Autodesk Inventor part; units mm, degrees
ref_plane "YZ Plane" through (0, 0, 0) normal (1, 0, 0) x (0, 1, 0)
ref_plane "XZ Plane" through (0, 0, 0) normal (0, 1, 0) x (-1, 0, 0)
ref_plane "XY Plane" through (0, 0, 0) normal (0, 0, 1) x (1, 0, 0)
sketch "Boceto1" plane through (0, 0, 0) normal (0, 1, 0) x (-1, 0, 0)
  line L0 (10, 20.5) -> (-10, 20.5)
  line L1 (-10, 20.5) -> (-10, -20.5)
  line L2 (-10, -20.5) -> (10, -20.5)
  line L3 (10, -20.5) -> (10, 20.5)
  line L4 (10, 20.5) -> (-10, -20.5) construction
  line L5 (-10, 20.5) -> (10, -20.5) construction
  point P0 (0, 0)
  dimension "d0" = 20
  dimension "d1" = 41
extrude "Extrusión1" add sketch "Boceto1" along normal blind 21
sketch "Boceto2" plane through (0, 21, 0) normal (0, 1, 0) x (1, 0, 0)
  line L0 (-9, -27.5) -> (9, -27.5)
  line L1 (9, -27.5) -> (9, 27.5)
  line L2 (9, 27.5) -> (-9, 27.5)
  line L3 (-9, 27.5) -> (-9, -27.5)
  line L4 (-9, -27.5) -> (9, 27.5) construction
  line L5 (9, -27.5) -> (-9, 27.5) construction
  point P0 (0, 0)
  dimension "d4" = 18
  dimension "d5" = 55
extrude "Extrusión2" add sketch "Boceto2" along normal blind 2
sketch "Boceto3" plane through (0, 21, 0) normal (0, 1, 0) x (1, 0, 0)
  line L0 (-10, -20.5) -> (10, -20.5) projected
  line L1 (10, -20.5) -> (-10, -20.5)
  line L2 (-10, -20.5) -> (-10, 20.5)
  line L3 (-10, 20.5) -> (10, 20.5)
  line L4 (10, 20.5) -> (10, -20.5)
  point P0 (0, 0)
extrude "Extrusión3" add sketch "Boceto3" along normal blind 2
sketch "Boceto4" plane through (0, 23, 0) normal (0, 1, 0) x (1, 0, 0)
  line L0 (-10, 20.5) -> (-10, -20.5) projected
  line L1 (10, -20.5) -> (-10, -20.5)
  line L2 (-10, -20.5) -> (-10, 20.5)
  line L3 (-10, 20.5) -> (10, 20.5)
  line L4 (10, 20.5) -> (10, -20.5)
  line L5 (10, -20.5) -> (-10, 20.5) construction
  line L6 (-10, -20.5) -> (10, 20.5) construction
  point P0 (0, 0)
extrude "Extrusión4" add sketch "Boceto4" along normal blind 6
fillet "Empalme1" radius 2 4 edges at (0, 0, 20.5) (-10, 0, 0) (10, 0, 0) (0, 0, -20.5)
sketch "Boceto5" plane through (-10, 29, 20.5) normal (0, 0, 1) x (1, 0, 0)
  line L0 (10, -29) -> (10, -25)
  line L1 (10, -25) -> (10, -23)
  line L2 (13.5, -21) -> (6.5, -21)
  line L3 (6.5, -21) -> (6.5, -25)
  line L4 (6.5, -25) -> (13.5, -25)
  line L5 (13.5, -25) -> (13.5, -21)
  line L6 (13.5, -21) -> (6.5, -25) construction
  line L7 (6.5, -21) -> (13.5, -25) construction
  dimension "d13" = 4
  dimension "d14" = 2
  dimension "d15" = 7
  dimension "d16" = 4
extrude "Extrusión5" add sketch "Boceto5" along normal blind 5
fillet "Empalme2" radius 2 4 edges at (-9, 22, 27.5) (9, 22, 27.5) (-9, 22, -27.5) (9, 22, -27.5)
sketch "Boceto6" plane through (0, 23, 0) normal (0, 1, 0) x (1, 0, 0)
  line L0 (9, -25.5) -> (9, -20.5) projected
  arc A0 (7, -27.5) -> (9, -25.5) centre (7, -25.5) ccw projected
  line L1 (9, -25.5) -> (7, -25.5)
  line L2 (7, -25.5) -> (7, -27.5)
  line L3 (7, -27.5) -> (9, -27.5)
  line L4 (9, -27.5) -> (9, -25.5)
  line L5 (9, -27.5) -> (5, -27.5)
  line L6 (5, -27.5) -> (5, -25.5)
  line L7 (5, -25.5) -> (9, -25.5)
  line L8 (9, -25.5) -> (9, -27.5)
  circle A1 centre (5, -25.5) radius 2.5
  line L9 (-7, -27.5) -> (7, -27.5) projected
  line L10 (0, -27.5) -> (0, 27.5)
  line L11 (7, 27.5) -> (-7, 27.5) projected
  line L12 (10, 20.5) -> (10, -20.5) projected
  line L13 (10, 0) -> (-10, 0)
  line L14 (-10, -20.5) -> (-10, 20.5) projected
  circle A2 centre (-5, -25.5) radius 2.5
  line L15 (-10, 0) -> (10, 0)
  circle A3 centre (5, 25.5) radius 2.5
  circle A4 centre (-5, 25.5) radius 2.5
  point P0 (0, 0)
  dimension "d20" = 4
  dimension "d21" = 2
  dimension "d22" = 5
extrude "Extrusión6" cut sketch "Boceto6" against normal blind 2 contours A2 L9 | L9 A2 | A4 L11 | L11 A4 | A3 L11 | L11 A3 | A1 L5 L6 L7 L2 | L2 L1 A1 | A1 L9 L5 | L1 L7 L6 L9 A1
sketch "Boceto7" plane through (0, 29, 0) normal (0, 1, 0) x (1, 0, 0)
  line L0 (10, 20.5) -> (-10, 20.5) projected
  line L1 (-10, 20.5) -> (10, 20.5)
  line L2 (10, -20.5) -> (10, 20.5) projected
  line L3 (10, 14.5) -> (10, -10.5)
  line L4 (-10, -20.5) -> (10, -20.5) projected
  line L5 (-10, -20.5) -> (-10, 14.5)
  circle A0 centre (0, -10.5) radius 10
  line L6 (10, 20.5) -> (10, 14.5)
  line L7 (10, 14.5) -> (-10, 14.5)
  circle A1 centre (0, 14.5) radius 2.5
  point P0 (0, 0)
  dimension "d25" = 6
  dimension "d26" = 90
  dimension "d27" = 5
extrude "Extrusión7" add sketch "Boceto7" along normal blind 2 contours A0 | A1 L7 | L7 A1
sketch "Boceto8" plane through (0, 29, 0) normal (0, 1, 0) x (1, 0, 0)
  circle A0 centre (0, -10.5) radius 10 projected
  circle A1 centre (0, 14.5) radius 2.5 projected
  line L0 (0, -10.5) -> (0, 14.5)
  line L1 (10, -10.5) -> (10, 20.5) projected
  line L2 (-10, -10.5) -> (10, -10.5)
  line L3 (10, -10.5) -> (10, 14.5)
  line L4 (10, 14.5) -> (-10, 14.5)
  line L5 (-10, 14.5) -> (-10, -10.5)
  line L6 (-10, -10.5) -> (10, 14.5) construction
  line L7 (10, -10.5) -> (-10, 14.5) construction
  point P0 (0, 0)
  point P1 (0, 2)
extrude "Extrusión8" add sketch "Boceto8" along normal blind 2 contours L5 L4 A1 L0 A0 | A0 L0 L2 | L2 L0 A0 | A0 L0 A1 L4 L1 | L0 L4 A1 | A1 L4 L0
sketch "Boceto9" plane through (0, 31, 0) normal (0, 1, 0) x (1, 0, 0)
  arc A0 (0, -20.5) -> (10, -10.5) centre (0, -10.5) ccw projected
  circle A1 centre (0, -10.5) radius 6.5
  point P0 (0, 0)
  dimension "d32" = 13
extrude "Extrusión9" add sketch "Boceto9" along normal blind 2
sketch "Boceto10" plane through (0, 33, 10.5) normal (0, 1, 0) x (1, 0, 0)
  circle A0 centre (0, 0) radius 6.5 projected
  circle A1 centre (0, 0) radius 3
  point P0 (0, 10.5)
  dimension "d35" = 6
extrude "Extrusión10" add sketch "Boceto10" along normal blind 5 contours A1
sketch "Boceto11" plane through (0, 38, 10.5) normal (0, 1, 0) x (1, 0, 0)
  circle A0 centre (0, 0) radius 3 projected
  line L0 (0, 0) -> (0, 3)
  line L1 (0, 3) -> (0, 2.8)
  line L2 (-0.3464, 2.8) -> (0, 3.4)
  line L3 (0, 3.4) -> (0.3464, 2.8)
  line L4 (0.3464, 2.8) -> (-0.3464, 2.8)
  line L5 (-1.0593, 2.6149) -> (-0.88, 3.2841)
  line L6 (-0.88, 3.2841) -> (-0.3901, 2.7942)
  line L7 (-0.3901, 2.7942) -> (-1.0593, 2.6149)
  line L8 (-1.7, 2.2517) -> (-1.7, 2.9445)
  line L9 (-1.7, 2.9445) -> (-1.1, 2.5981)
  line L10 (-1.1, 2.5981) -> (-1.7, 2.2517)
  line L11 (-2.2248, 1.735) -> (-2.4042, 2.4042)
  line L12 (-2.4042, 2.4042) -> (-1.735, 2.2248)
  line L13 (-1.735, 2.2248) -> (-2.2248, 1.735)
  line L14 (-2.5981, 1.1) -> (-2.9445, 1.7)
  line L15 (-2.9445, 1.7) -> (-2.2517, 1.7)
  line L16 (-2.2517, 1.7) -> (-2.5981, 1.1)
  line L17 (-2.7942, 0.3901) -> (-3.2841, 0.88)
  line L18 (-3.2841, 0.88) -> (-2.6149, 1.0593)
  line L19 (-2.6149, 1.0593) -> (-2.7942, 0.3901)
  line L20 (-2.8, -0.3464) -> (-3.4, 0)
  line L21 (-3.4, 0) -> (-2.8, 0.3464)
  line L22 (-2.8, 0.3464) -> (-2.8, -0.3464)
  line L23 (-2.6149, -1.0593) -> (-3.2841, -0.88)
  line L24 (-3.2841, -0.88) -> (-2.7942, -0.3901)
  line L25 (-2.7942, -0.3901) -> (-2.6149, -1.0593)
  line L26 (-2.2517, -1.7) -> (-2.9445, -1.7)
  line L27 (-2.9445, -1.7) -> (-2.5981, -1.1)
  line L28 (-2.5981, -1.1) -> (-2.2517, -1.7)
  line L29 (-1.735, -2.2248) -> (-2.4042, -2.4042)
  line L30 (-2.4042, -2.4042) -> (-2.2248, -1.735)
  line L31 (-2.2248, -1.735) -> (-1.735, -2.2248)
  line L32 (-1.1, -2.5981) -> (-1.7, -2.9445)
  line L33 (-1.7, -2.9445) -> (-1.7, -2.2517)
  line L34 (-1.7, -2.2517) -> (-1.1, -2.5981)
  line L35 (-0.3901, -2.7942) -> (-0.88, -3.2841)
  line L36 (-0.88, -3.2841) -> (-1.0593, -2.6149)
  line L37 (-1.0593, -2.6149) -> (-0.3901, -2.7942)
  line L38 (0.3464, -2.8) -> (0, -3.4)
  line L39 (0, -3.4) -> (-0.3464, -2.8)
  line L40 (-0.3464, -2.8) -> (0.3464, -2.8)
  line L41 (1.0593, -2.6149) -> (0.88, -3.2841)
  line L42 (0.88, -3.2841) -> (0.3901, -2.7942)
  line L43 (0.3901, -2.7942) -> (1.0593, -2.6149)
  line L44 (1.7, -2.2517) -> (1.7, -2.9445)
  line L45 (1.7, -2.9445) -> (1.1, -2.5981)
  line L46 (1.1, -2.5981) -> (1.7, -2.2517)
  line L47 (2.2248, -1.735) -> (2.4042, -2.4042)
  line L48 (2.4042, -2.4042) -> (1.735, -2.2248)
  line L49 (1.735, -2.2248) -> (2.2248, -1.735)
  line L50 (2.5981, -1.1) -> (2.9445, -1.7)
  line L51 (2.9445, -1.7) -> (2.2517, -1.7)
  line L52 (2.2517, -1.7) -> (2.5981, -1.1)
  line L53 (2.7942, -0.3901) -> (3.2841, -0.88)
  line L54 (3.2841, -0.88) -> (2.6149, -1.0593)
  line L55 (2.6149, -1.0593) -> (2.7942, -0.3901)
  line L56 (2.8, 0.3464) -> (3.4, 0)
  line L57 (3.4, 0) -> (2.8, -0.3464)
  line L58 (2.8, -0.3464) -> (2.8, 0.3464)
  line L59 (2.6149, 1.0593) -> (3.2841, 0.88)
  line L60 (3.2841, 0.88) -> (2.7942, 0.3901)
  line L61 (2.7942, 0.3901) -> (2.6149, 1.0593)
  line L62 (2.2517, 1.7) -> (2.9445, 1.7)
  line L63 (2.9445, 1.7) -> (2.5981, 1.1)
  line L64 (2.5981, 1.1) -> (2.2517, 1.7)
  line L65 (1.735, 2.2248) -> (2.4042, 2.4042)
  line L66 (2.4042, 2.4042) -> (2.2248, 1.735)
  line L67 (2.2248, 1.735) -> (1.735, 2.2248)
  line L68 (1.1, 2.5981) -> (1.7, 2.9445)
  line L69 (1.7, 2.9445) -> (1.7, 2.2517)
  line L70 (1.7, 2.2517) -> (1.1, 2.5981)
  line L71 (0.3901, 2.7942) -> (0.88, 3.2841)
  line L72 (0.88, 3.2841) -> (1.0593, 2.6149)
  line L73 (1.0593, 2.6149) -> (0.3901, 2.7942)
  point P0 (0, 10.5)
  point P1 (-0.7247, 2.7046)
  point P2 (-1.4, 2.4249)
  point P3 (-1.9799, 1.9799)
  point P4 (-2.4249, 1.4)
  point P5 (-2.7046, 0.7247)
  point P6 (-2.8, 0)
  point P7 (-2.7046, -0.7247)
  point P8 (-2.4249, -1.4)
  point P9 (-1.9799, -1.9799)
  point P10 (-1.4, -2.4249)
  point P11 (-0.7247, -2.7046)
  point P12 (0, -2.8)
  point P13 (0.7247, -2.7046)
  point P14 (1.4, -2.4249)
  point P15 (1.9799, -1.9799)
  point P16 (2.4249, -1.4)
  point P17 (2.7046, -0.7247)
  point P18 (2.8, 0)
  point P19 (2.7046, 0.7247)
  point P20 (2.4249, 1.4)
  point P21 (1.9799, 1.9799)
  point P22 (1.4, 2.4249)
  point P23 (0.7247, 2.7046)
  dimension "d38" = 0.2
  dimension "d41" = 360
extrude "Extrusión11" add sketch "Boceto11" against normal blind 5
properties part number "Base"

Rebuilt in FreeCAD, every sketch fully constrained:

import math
import FreeCAD as App
import Part
import Sketcher
Q = App.Units.Quantity


def edges_at(feature, points):
    """Names of the edges that pass closest to the given points."""
    edges = feature.Shape.Edges
    near = lambda p: min(range(len(edges)), key=lambda i: edges[i].distToShape(Part.Vertex(*p))[0])
    return sorted({f"Edge{near(p) + 1}" for p in points})

doc = App.newDocument("Part")
body = doc.addObject("PartDesign::Body", "Body")

# Sketch on XZ plane
sketch1 = body.newObject("Sketcher::SketchObject", "Sketch")
sketch1.AttachmentSupport = (doc.getObject("XZ_Plane"), [""])
sketch1.MapMode = "FlatFace"
sketch1.addGeometry(Part.LineSegment(App.Vector(-10, -20, 0), App.Vector(-10, 20, 0)), False)
sketch1.addGeometry(Part.LineSegment(App.Vector(-10, 20, 0), App.Vector(10, 20, 0)), False)
sketch1.addGeometry(Part.LineSegment(App.Vector(10, 20, 0), App.Vector(10, -20, 0)), False)
sketch1.addGeometry(Part.LineSegment(App.Vector(10, -20, 0), App.Vector(-10, -20, 0)), False)
sketch1.addConstraint(Sketcher.Constraint("Coincident", 0, 2, 1, 1))
sketch1.addConstraint(Sketcher.Constraint("Coincident", 1, 2, 2, 1))
sketch1.addConstraint(Sketcher.Constraint("Coincident", 2, 2, 3, 1))
sketch1.addConstraint(Sketcher.Constraint("Coincident", 3, 2, 0, 1))
sketch1.addConstraint(Sketcher.Constraint("Vertical", 0))
sketch1.addConstraint(Sketcher.Constraint("Horizontal", 1))
sketch1.addConstraint(Sketcher.Constraint("Vertical", 2))
sketch1.addConstraint(Sketcher.Constraint("Horizontal", 3))
sketch1.addConstraint(Sketcher.Constraint("Symmetric", 0, 2, 2, 2, -1, 1))
sketch1.addConstraint(Sketcher.Constraint("DistanceX", 1, 1, 1, 2, Q("20 mm")))
sketch1.addConstraint(Sketcher.Constraint("DistanceY", 0, 1, 0, 2, Q("41 mm")))
pad1 = body.newObject("PartDesign::Pad", "Pad")
pad1.Profile = sketch1
pad1.Length = 21
pad1.Reversed = True

# Sketch on XZ plane
sketch2 = body.newObject("Sketcher::SketchObject", "Sketch001")
sketch2.AttachmentSupport = (doc.getObject("XZ_Plane"), [""])
sketch2.MapMode = "FlatFace"
sketch2.AttachmentOffset = App.Placement(App.Vector(0, 0, -21), App.Rotation())
sketch2.addGeometry(Part.LineSegment(App.Vector(-9, -28, 0), App.Vector(-9, 28, 0)), False)
sketch2.addGeometry(Part.LineSegment(App.Vector(-9, 28, 0), App.Vector(9, 28, 0)), False)
sketch2.addGeometry(Part.LineSegment(App.Vector(9, 28, 0), App.Vector(9, -28, 0)), False)
sketch2.addGeometry(Part.LineSegment(App.Vector(9, -28, 0), App.Vector(-9, -28, 0)), False)
sketch2.addConstraint(Sketcher.Constraint("Coincident", 0, 2, 1, 1))
sketch2.addConstraint(Sketcher.Constraint("Coincident", 1, 2, 2, 1))
sketch2.addConstraint(Sketcher.Constraint("Coincident", 2, 2, 3, 1))
sketch2.addConstraint(Sketcher.Constraint("Coincident", 3, 2, 0, 1))
sketch2.addConstraint(Sketcher.Constraint("Vertical", 0))
sketch2.addConstraint(Sketcher.Constraint("Horizontal", 1))
sketch2.addConstraint(Sketcher.Constraint("Vertical", 2))
sketch2.addConstraint(Sketcher.Constraint("Horizontal", 3))
sketch2.addConstraint(Sketcher.Constraint("Symmetric", 0, 2, 2, 2, -1, 1))
sketch2.addConstraint(Sketcher.Constraint("DistanceX", 1, 1, 1, 2, Q("18 mm")))
sketch2.addConstraint(Sketcher.Constraint("DistanceY", 0, 1, 0, 2, Q("55 mm")))
pad2 = body.newObject("PartDesign::Pad", "Pad001")
pad2.Profile = sketch2
pad2.Length = 2
pad2.Reversed = True

# Sketch on XZ plane
sketch3 = body.newObject("Sketcher::SketchObject", "Sketch002")
sketch3.AttachmentSupport = (doc.getObject("XZ_Plane"), [""])
sketch3.MapMode = "FlatFace"
sketch3.AttachmentOffset = App.Placement(App.Vector(0, 0, -21), App.Rotation())
sketch3.addGeometry(Part.LineSegment(App.Vector(-10, -20, 0), App.Vector(-10, 20, 0)), False)
sketch3.addGeometry(Part.LineSegment(App.Vector(-10, 20, 0), App.Vector(10, 20, 0)), False)
sketch3.addGeometry(Part.LineSegment(App.Vector(10, 20, 0), App.Vector(10, -20, 0)), False)
sketch3.addGeometry(Part.LineSegment(App.Vector(10, -20, 0), App.Vector(-10, -20, 0)), False)
sketch3.addConstraint(Sketcher.Constraint("Coincident", 0, 2, 1, 1))
sketch3.addConstraint(Sketcher.Constraint("Coincident", 1, 2, 2, 1))
sketch3.addConstraint(Sketcher.Constraint("Coincident", 2, 2, 3, 1))
sketch3.addConstraint(Sketcher.Constraint("Coincident", 3, 2, 0, 1))
sketch3.addConstraint(Sketcher.Constraint("Vertical", 0))
sketch3.addConstraint(Sketcher.Constraint("Horizontal", 1))
sketch3.addConstraint(Sketcher.Constraint("Vertical", 2))
sketch3.addConstraint(Sketcher.Constraint("Horizontal", 3))
sketch3.addConstraint(Sketcher.Constraint("Symmetric", 0, 2, 2, 2, -1, 1))
sketch3.addConstraint(Sketcher.Constraint("DistanceX", 1, 1, 1, 2, Q("20 mm")))
sketch3.addConstraint(Sketcher.Constraint("DistanceY", 0, 1, 0, 2, Q("41 mm")))
pad3 = body.newObject("PartDesign::Pad", "Pad002")
pad3.Profile = sketch3
pad3.Length = 2
pad3.Reversed = True

# Sketch on XZ plane
sketch4 = body.newObject("Sketcher::SketchObject", "Sketch003")
sketch4.AttachmentSupport = (doc.getObject("XZ_Plane"), [""])
sketch4.MapMode = "FlatFace"
sketch4.AttachmentOffset = App.Placement(App.Vector(0, 0, -23), App.Rotation())
sketch4.addGeometry(Part.LineSegment(App.Vector(10, -20, 0), App.Vector(-10, -20, 0)), False)
sketch4.addGeometry(Part.LineSegment(App.Vector(-10, -20, 0), App.Vector(-10, 20, 0)), False)
sketch4.addGeometry(Part.LineSegment(App.Vector(-10, 20, 0), App.Vector(10, 20, 0)), False)
sketch4.addGeometry(Part.LineSegment(App.Vector(10, 20, 0), App.Vector(10, -20, 0)), False)
sketch4.addConstraint(Sketcher.Constraint("Coincident", 0, 2, 1, 1))
sketch4.addConstraint(Sketcher.Constraint("Coincident", 1, 2, 2, 1))
sketch4.addConstraint(Sketcher.Constraint("Coincident", 2, 2, 3, 1))
sketch4.addConstraint(Sketcher.Constraint("Coincident", 3, 2, 0, 1))
sketch4.addConstraint(Sketcher.Constraint("Horizontal", 0))
sketch4.addConstraint(Sketcher.Constraint("Vertical", 1))
sketch4.addConstraint(Sketcher.Constraint("Horizontal", 2))
sketch4.addConstraint(Sketcher.Constraint("Vertical", 3))
sketch4.addConstraint(Sketcher.Constraint("Symmetric", 0, 2, 2, 2, -1, 1))
sketch4.addConstraint(Sketcher.Constraint("DistanceX", 0, 2, 0, 1, Q("20 mm")))
sketch4.addConstraint(Sketcher.Constraint("DistanceY", 1, 1, 1, 2, Q("41 mm")))
pad4 = body.newObject("PartDesign::Pad", "Pad003")
pad4.Profile = sketch4
pad4.Length = 6
pad4.Reversed = True
doc.recompute()

fillet = body.newObject("PartDesign::Fillet", "Fillet")
fillet.Base = (pad4, edges_at(pad4, [
    (0, 0, 20.5),
    (-10, 0, 0),
    (10, 0, 0),
    (0, 0, -20.5),
]))
fillet.Radius = 2

# Sketch on XY plane
sketch5 = body.newObject("Sketcher::SketchObject", "Sketch004")
sketch5.AttachmentSupport = (doc.getObject("XY_Plane"), [""])
sketch5.MapMode = "FlatFace"
sketch5.AttachmentOffset = App.Placement(App.Vector(0, 0, 20.5), App.Rotation())
sketch5.addGeometry(Part.LineSegment(App.Vector(3.5, 4, 0), App.Vector(3.5, 8, 0)), False)
sketch5.addGeometry(Part.LineSegment(App.Vector(3.5, 8, 0), App.Vector(-3.5, 8, 0)), False)
sketch5.addGeometry(Part.LineSegment(App.Vector(-3.5, 8, 0), App.Vector(-3.5, 4, 0)), False)
sketch5.addGeometry(Part.LineSegment(App.Vector(-3.5, 4, 0), App.Vector(3.5, 4, 0)), False)
sketch5.addConstraint(Sketcher.Constraint("Coincident", 0, 2, 1, 1))
sketch5.addConstraint(Sketcher.Constraint("Coincident", 1, 2, 2, 1))
sketch5.addConstraint(Sketcher.Constraint("Coincident", 2, 2, 3, 1))
sketch5.addConstraint(Sketcher.Constraint("Coincident", 3, 2, 0, 1))
sketch5.addConstraint(Sketcher.Constraint("Vertical", 0))
sketch5.addConstraint(Sketcher.Constraint("Horizontal", 1))
sketch5.addConstraint(Sketcher.Constraint("Vertical", 2))
sketch5.addConstraint(Sketcher.Constraint("Horizontal", 3))
sketch5.addConstraint(Sketcher.Constraint("DistanceX", 1, 2, 1, 1, Q("7 mm")))
sketch5.addConstraint(Sketcher.Constraint("DistanceY", 0, 1, 0, 2, Q("4 mm")))
sketch5.addConstraint(Sketcher.Constraint("DistanceY", -1, 1, 2, 2, Q("4 mm")))
sketch5.addConstraint(Sketcher.Constraint("DistanceX", -1, 1, 0, 2, Q("3.5 mm")))
pad5 = body.newObject("PartDesign::Pad", "Pad004")
pad5.Profile = sketch5
pad5.Length = 5
doc.recompute()

fillet2 = body.newObject("PartDesign::Fillet", "Fillet001")
fillet2.Base = (pad5, edges_at(pad5, [
    (-9, 22, 27.5),
    (9, 22, 27.5),
    (-9, 22, -27.5),
    (9, 22, -27.5),
]))
fillet2.Radius = 2

# Sketch on XZ plane
sketch6 = body.newObject("Sketcher::SketchObject", "Sketch005")
sketch6.AttachmentSupport = (doc.getObject("XZ_Plane"), [""])
sketch6.MapMode = "FlatFace"
sketch6.AttachmentOffset = App.Placement(App.Vector(0, 0, -23), App.Rotation())
sketch6.addGeometry(Part.Circle(App.Vector(-5, 25.5, 0), App.Vector(0, 0, 1), 2.5), False)
sketch6.addGeometry(Part.Circle(App.Vector(-5, -25.5, 0), App.Vector(0, 0, 1), 2.5), False)
sketch6.addGeometry(Part.Circle(App.Vector(5, -25.5, 0), App.Vector(0, 0, 1), 2.5), False)
sketch6.addGeometry(Part.Circle(App.Vector(5, 25.5, 0), App.Vector(0, 0, 1), 2.5), False)
sketch6.addConstraint(Sketcher.Constraint("Equal", 0, 1))
sketch6.addConstraint(Sketcher.Constraint("Equal", 1, 2))
sketch6.addConstraint(Sketcher.Constraint("Equal", 2, 3))
sketch6.addConstraint(Sketcher.Constraint("Symmetric", 0, 3, 2, 3, -1, 1))
sketch6.addConstraint(Sketcher.Constraint("Symmetric", 1, 3, 3, 3, -1, 1))
sketch6.addConstraint(Sketcher.Constraint("Symmetric", 1, 3, 2, 3, -2))
sketch6.addConstraint(Sketcher.Constraint("Diameter", 0, Q("5 mm")))
sketch6.addConstraint(Sketcher.Constraint("DistanceX", 0, 3, -1, 1, Q("5 mm")))
sketch6.addConstraint(Sketcher.Constraint("DistanceY", 1, 3, 0, 3, Q("51 mm")))
pocket1 = body.newObject("PartDesign::Pocket", "Pocket")
pocket1.Profile = sketch6
pocket1.Length = 2
pocket1.Reversed = True

# Sketch on XZ plane
sketch7 = body.newObject("Sketcher::SketchObject", "Sketch006")
sketch7.AttachmentSupport = (doc.getObject("XZ_Plane"), [""])
sketch7.MapMode = "FlatFace"
sketch7.AttachmentOffset = App.Placement(App.Vector(0, 0, -29), App.Rotation())
sketch7.addGeometry(Part.Circle(App.Vector(0, 10.5, 0), App.Vector(0, 0, 1), 10), False)
sketch7.addGeometry(Part.Circle(App.Vector(0, -14.5, 0), App.Vector(0, 0, 1), 2.5), False)
sketch7.addConstraint(Sketcher.Constraint("PointOnObject", 0, 3, -2))
sketch7.addConstraint(Sketcher.Constraint("PointOnObject", 1, 3, -2))
sketch7.addConstraint(Sketcher.Constraint("Diameter", 1, Q("5 mm")))
sketch7.addConstraint(Sketcher.Constraint("Diameter", 0, Q("20 mm")))
sketch7.addConstraint(Sketcher.Constraint("DistanceY", 1, 3, 0, 3, Q("25 mm")))
sketch7.addConstraint(Sketcher.Constraint("DistanceY", -1, 1, 0, 3, Q("10.5 mm")))
pad6 = body.newObject("PartDesign::Pad", "Pad005")
pad6.Profile = sketch7
pad6.Length = 2
pad6.Reversed = True

# Sketch on XZ plane
sketch8 = body.newObject("Sketcher::SketchObject", "Sketch007")
sketch8.AttachmentSupport = (doc.getObject("XZ_Plane"), [""])
sketch8.MapMode = "FlatFace"
sketch8.AttachmentOffset = App.Placement(App.Vector(0, 0, -29), App.Rotation())
sketch8.addGeometry(Part.LineSegment(App.Vector(-10, -14, 0), App.Vector(-10, 10, 0)), False)
sketch8.addGeometry(Part.LineSegment(App.Vector(-10, 10, 0), App.Vector(10, 10, 0)), False)
sketch8.addGeometry(Part.LineSegment(App.Vector(10, 10, 0), App.Vector(10, -14, 0)), False)
sketch8.addGeometry(Part.LineSegment(App.Vector(10, -14, 0), App.Vector(-10, -14, 0)), False)
sketch8.addConstraint(Sketcher.Constraint("Coincident", 0, 2, 1, 1))
sketch8.addConstraint(Sketcher.Constraint("Coincident", 1, 2, 2, 1))
sketch8.addConstraint(Sketcher.Constraint("Coincident", 2, 2, 3, 1))
sketch8.addConstraint(Sketcher.Constraint("Coincident", 3, 2, 0, 1))
sketch8.addConstraint(Sketcher.Constraint("Vertical", 0))
sketch8.addConstraint(Sketcher.Constraint("Horizontal", 1))
sketch8.addConstraint(Sketcher.Constraint("Vertical", 2))
sketch8.addConstraint(Sketcher.Constraint("Horizontal", 3))
sketch8.addConstraint(Sketcher.Constraint("DistanceX", 1, 1, 1, 2, Q("20 mm")))
sketch8.addConstraint(Sketcher.Constraint("DistanceY", 0, 1, 0, 2, Q("25 mm")))
sketch8.addConstraint(Sketcher.Constraint("DistanceX", 0, 2, -1, 1, Q("10 mm")))
sketch8.addConstraint(Sketcher.Constraint("DistanceY", -1, 1, 0, 2, Q("10.5 mm")))
pad7 = body.newObject("PartDesign::Pad", "Pad006")
pad7.Profile = sketch8
pad7.Length = 2
pad7.Reversed = True

# Sketch on XZ plane
sketch9 = body.newObject("Sketcher::SketchObject", "Sketch008")
sketch9.AttachmentSupport = (doc.getObject("XZ_Plane"), [""])
sketch9.MapMode = "FlatFace"
sketch9.AttachmentOffset = App.Placement(App.Vector(0, 0, -31), App.Rotation())
sketch9.addGeometry(Part.Circle(App.Vector(0, 10, 0), App.Vector(0, 0, 1), 6), False)
sketch9.addConstraint(Sketcher.Constraint("PointOnObject", 0, 3, -2))
sketch9.addConstraint(Sketcher.Constraint("Diameter", 0, Q("13 mm")))
sketch9.addConstraint(Sketcher.Constraint("DistanceY", -1, 1, 0, 3, Q("10.5 mm")))
pad8 = body.newObject("PartDesign::Pad", "Pad007")
pad8.Profile = sketch9
pad8.Length = 2
pad8.Reversed = True

# Sketch on XZ plane
sketch10 = body.newObject("Sketcher::SketchObject", "Sketch009")
sketch10.AttachmentSupport = (doc.getObject("XZ_Plane"), [""])
sketch10.MapMode = "FlatFace"
sketch10.AttachmentOffset = App.Placement(App.Vector(0, 0, -33), App.Rotation())
sketch10.addGeometry(Part.Circle(App.Vector(0, 10.5, 0), App.Vector(0, 0, 1), 3), False)
sketch10.addConstraint(Sketcher.Constraint("PointOnObject", 0, 3, -2))
sketch10.addConstraint(Sketcher.Constraint("Diameter", 0, Q("6 mm")))
sketch10.addConstraint(Sketcher.Constraint("DistanceY", -1, 1, 0, 3, Q("10.5 mm")))
pad9 = body.newObject("PartDesign::Pad", "Pad008")
pad9.Profile = sketch10
pad9.Length = 5
pad9.Reversed = True

# Sketch on XZ plane
sketch11 = body.newObject("Sketcher::SketchObject", "Sketch010")
sketch11.AttachmentSupport = (doc.getObject("XZ_Plane"), [""])
sketch11.MapMode = "FlatFace"
sketch11.AttachmentOffset = App.Placement(App.Vector(0, 0, -38), App.Rotation())
sketch11.addGeometry(Part.LineSegment(App.Vector(2.99, 10.74, 0), App.Vector(3.4, 10.5, 0)), False)
sketch11.addGeometry(Part.LineSegment(App.Vector(3.4, 10.5, 0), App.Vector(2.99, 10.26, 0)), False)
sketch11.addGeometry(Part.ArcOfCircle(Part.Circle(App.Vector(0, 10.5, 0), App.Vector(0, 0, 1), 3), math.radians(-10.48), math.radians(-4.52)), False)
sketch11.addGeometry(Part.LineSegment(App.Vector(2.95, 9.95, 0), App.Vector(3.28, 9.62, 0)), False)
sketch11.addGeometry(Part.LineSegment(App.Vector(3.28, 9.62, 0), App.Vector(2.83, 9.5, 0)), False)
sketch11.addGeometry(Part.ArcOfCircle(Part.Circle(App.Vector(0, 10.5, 0), App.Vector(0, 0, 1), 3), math.radians(-25.48), math.radians(-19.52)), False)
sketch11.addGeometry(Part.LineSegment(App.Vector(2.71, 9.21, 0), App.Vector(2.94, 8.8, 0)), False)
sketch11.addGeometry(Part.LineSegment(App.Vector(2.94, 8.8, 0), App.Vector(2.47, 8.8, 0)), False)
sketch11.addGeometry(Part.ArcOfCircle(Part.Circle(App.Vector(0, 10.5, 0), App.Vector(0, 0, 1), 3), math.radians(-40.48), math.radians(-34.52)), False)
sketch11.addGeometry(Part.LineSegment(App.Vector(2.28, 8.55, 0), App.Vector(2.4, 8.1, 0)), False)
sketch11.addGeometry(Part.LineSegment(App.Vector(2.4, 8.1, 0), App.Vector(1.95, 8.22, 0)), False)
sketch11.addGeometry(Part.ArcOfCircle(Part.Circle(App.Vector(0, 10.5, 0), App.Vector(0, 0, 1), 3), math.radians(-55.48), math.radians(-49.52)), False)
sketch11.addGeometry(Part.LineSegment(App.Vector(1.7, 8.03, 0), App.Vector(1.7, 7.56, 0)), False)
sketch11.addGeometry(Part.LineSegment(App.Vector(1.7, 7.56, 0), App.Vector(1.29, 7.79, 0)), False)
sketch11.addGeometry(Part.ArcOfCircle(Part.Circle(App.Vector(0, 10.5, 0), App.Vector(0, 0, 1), 3), math.radians(-70.48), math.radians(-64.52)), False)
sketch11.addGeometry(Part.LineSegment(App.Vector(1, 7.67, 0), App.Vector(0.88, 7.22, 0)), False)
sketch11.addGeometry(Part.LineSegment(App.Vector(0.88, 7.22, 0), App.Vector(0.55, 7.55, 0)), False)
sketch11.addGeometry(Part.ArcOfCircle(Part.Circle(App.Vector(0, 10.5, 0), App.Vector(0, 0, 1), 3), math.radians(-85.48), math.radians(-79.52)), False)
sketch11.addGeometry(Part.LineSegment(App.Vector(0.24, 7.51, 0), App.Vector(0, 7.1, 0)), False)
sketch11.addGeometry(Part.LineSegment(App.Vector(0, 7.1, 0), App.Vector(-0.24, 7.51, 0)), False)
sketch11.addGeometry(Part.ArcOfCircle(Part.Circle(App.Vector(0, 10.5, 0), App.Vector(0, 0, 1), 3), math.radians(-100.48), math.radians(-94.52)), False)
sketch11.addGeometry(Part.LineSegment(App.Vector(-0.55, 7.55, 0), App.Vector(-0.88, 7.22, 0)), False)
sketch11.addGeometry(Part.LineSegment(App.Vector(-0.88, 7.22, 0), App.Vector(-1, 7.67, 0)), False)
sketch11.addGeometry(Part.ArcOfCircle(Part.Circle(App.Vector(0, 10.5, 0), App.Vector(0, 0, 1), 3), math.radians(-115.48), math.radians(-109.52)), False)
sketch11.addGeometry(Part.LineSegment(App.Vector(-1.29, 7.79, 0), App.Vector(-1.7, 7.56, 0)), False)
sketch11.addGeometry(Part.LineSegment(App.Vector(-1.7, 7.56, 0), App.Vector(-1.7, 8.03, 0)), False)
sketch11.addGeometry(Part.ArcOfCircle(Part.Circle(App.Vector(0, 10.5, 0), App.Vector(0, 0, 1), 3), math.radians(-130.48), math.radians(-124.52)), False)
sketch11.addGeometry(Part.LineSegment(App.Vector(-1.95, 8.22, 0), App.Vector(-2.4, 8.1, 0)), False)
sketch11.addGeometry(Part.LineSegment(App.Vector(-2.4, 8.1, 0), App.Vector(-2.28, 8.55, 0)), False)
sketch11.addGeometry(Part.ArcOfCircle(Part.Circle(App.Vector(0, 10.5, 0), App.Vector(0, 0, 1), 3), math.radians(-145.48), math.radians(-139.52)), False)
sketch11.addGeometry(Part.LineSegment(App.Vector(-2.47, 8.8, 0), App.Vector(-2.94, 8.8, 0)), False)
sketch11.addGeometry(Part.LineSegment(App.Vector(-2.94, 8.8, 0), App.Vector(-2.71, 9.21, 0)), False)
sketch11.addGeometry(Part.ArcOfCircle(Part.Circle(App.Vector(0, 10.5, 0), App.Vector(0, 0, 1), 3), math.radians(-160.48), math.radians(-154.52)), False)
sketch11.addGeometry(Part.LineSegment(App.Vector(-2.83, 9.5, 0), App.Vector(-3.28, 9.62, 0)), False)
sketch11.addGeometry(Part.LineSegment(App.Vector(-3.28, 9.62, 0), App.Vector(-2.95, 9.95, 0)), False)
sketch11.addGeometry(Part.ArcOfCircle(Part.Circle(App.Vector(0, 10.5, 0), App.Vector(0, 0, 1), 3), math.radians(-175.48), math.radians(-169.52)), False)
sketch11.addGeometry(Part.LineSegment(App.Vector(-2.99, 10.26, 0), App.Vector(-3.4, 10.5, 0)), False)
sketch11.addGeometry(Part.LineSegment(App.Vector(-3.4, 10.5, 0), App.Vector(-2.99, 10.74, 0)), False)
sketch11.addGeometry(Part.ArcOfCircle(Part.Circle(App.Vector(0, 10.5, 0), App.Vector(0, 0, 1), 3), math.radians(169.52), math.radians(175.48)), False)
sketch11.addGeometry(Part.LineSegment(App.Vector(-2.95, 11.05, 0), App.Vector(-3.28, 11.38, 0)), False)
sketch11.addGeometry(Part.LineSegment(App.Vector(-3.28, 11.38, 0), App.Vector(-2.83, 11.5, 0)), False)
sketch11.addGeometry(Part.ArcOfCircle(Part.Circle(App.Vector(0, 10.5, 0), App.Vector(0, 0, 1), 3), math.radians(154.52), math.radians(160.48)), False)
sketch11.addGeometry(Part.LineSegment(App.Vector(-2.71, 11.79, 0), App.Vector(-2.94, 12.2, 0)), False)
sketch11.addGeometry(Part.LineSegment(App.Vector(-2.94, 12.2, 0), App.Vector(-2.47, 12.2, 0)), False)
sketch11.addGeometry(Part.ArcOfCircle(Part.Circle(App.Vector(0, 10.5, 0), App.Vector(0, 0, 1), 3), math.radians(139.52), math.radians(145.48)), False)
sketch11.addGeometry(Part.LineSegment(App.Vector(-2.28, 12.45, 0), App.Vector(-2.4, 12.9, 0)), False)
sketch11.addGeometry(Part.LineSegment(App.Vector(-2.4, 12.9, 0), App.Vector(-1.95, 12.78, 0)), False)
sketch11.addGeometry(Part.ArcOfCircle(Part.Circle(App.Vector(0, 10.5, 0), App.Vector(0, 0, 1), 3), math.radians(124.52), math.radians(130.48)), False)
sketch11.addGeometry(Part.LineSegment(App.Vector(-1.7, 12.97, 0), App.Vector(-1.7, 13.44, 0)), False)
sketch11.addGeometry(Part.LineSegment(App.Vector(-1.7, 13.44, 0), App.Vector(-1.29, 13.21, 0)), False)
sketch11.addGeometry(Part.ArcOfCircle(Part.Circle(App.Vector(0, 10.5, 0), App.Vector(0, 0, 1), 3), math.radians(109.52), math.radians(115.48)), False)
sketch11.addGeometry(Part.LineSegment(App.Vector(-1, 13.33, 0), App.Vector(-0.88, 13.78, 0)), False)
sketch11.addGeometry(Part.LineSegment(App.Vector(-0.88, 13.78, 0), App.Vector(-0.55, 13.45, 0)), False)
sketch11.addGeometry(Part.ArcOfCircle(Part.Circle(App.Vector(0, 10.5, 0), App.Vector(0, 0, 1), 3), math.radians(94.52), math.radians(100.48)), False)
sketch11.addGeometry(Part.LineSegment(App.Vector(-0.24, 13.49, 0), App.Vector(0, 13.9, 0)), False)
sketch11.addGeometry(Part.LineSegment(App.Vector(0, 13.9, 0), App.Vector(0.24, 13.49, 0)), False)
sketch11.addGeometry(Part.ArcOfCircle(Part.Circle(App.Vector(0, 10.5, 0), App.Vector(0, 0, 1), 3), math.radians(79.52), math.radians(85.48)), False)
sketch11.addGeometry(Part.LineSegment(App.Vector(0.55, 13.45, 0), App.Vector(0.88, 13.78, 0)), False)
sketch11.addGeometry(Part.LineSegment(App.Vector(0.88, 13.78, 0), App.Vector(1, 13.33, 0)), False)
sketch11.addGeometry(Part.ArcOfCircle(Part.Circle(App.Vector(0, 10.5, 0), App.Vector(0, 0, 1), 3), math.radians(64.52), math.radians(70.48)), False)
sketch11.addGeometry(Part.LineSegment(App.Vector(1.29, 13.21, 0), App.Vector(1.7, 13.44, 0)), False)
sketch11.addGeometry(Part.LineSegment(App.Vector(1.7, 13.44, 0), App.Vector(1.7, 12.97, 0)), False)
sketch11.addGeometry(Part.ArcOfCircle(Part.Circle(App.Vector(0, 10.5, 0), App.Vector(0, 0, 1), 3), math.radians(49.52), math.radians(55.48)), False)
sketch11.addGeometry(Part.LineSegment(App.Vector(1.95, 12.78, 0), App.Vector(2.4, 12.9, 0)), False)
sketch11.addGeometry(Part.LineSegment(App.Vector(2.4, 12.9, 0), App.Vector(2.28, 12.45, 0)), False)
sketch11.addGeometry(Part.ArcOfCircle(Part.Circle(App.Vector(0, 10.5, 0), App.Vector(0, 0, 1), 3), math.radians(34.52), math.radians(40.48)), False)
sketch11.addGeometry(Part.LineSegment(App.Vector(2.47, 12.2, 0), App.Vector(2.94, 12.2, 0)), False)
sketch11.addGeometry(Part.LineSegment(App.Vector(2.94, 12.2, 0), App.Vector(2.71, 11.79, 0)), False)
sketch11.addGeometry(Part.ArcOfCircle(Part.Circle(App.Vector(0, 10.5, 0), App.Vector(0, 0, 1), 3), math.radians(19.52), math.radians(25.48)), False)
sketch11.addGeometry(Part.LineSegment(App.Vector(2.83, 11.5, 0), App.Vector(3.28, 11.38, 0)), False)
sketch11.addGeometry(Part.LineSegment(App.Vector(3.28, 11.38, 0), App.Vector(2.95, 11.05, 0)), False)
sketch11.addGeometry(Part.ArcOfCircle(Part.Circle(App.Vector(0, 10.5, 0), App.Vector(0, 0, 1), 3), math.radians(4.52), math.radians(10.48)), False)
sketch11.addConstraint(Sketcher.Constraint("Coincident", 0, 2, 1, 1))
sketch11.addConstraint(Sketcher.Constraint("Coincident", 1, 2, 2, 2))
sketch11.addConstraint(Sketcher.Constraint("Coincident", 2, 1, 3, 1))
sketch11.addConstraint(Sketcher.Constraint("Coincident", 3, 2, 4, 1))
sketch11.addConstraint(Sketcher.Constraint("Coincident", 4, 2, 5, 2))
sketch11.addConstraint(Sketcher.Constraint("Coincident", 5, 1, 6, 1))
sketch11.addConstraint(Sketcher.Constraint("Coincident", 6, 2, 7, 1))
sketch11.addConstraint(Sketcher.Constraint("Coincident", 7, 2, 8, 2))
sketch11.addConstraint(Sketcher.Constraint("Coincident", 8, 1, 9, 1))
sketch11.addConstraint(Sketcher.Constraint("Coincident", 9, 2, 10, 1))
sketch11.addConstraint(Sketcher.Constraint("Coincident", 10, 2, 11, 2))
sketch11.addConstraint(Sketcher.Constraint("Coincident", 11, 1, 12, 1))
sketch11.addConstraint(Sketcher.Constraint("Coincident", 12, 2, 13, 1))
sketch11.addConstraint(Sketcher.Constraint("Coincident", 13, 2, 14, 2))
sketch11.addConstraint(Sketcher.Constraint("Coincident", 14, 1, 15, 1))
sketch11.addConstraint(Sketcher.Constraint("Coincident", 15, 2, 16, 1))
sketch11.addConstraint(Sketcher.Constraint("Coincident", 16, 2, 17, 2))
sketch11.addConstraint(Sketcher.Constraint("Coincident", 17, 1, 18, 1))
sketch11.addConstraint(Sketcher.Constraint("Coincident", 18, 2, 19, 1))
sketch11.addConstraint(Sketcher.Constraint("Coincident", 19, 2, 20, 2))
sketch11.addConstraint(Sketcher.Constraint("Coincident", 20, 1, 21, 1))
sketch11.addConstraint(Sketcher.Constraint("Coincident", 21, 2, 22, 1))
sketch11.addConstraint(Sketcher.Constraint("Coincident", 22, 2, 23, 2))
sketch11.addConstraint(Sketcher.Constraint("Coincident", 23, 1, 24, 1))
sketch11.addConstraint(Sketcher.Constraint("Coincident", 24, 2, 25, 1))
sketch11.addConstraint(Sketcher.Constraint("Coincident", 25, 2, 26, 2))
sketch11.addConstraint(Sketcher.Constraint("Coincident", 26, 1, 27, 1))
sketch11.addConstraint(Sketcher.Constraint("Coincident", 27, 2, 28, 1))
sketch11.addConstraint(Sketcher.Constraint("Coincident", 28, 2, 29, 2))
sketch11.addConstraint(Sketcher.Constraint("Coincident", 29, 1, 30, 1))
sketch11.addConstraint(Sketcher.Constraint("Coincident", 30, 2, 31, 1))
sketch11.addConstraint(Sketcher.Constraint("Coincident", 31, 2, 32, 2))
sketch11.addConstraint(Sketcher.Constraint("Coincident", 32, 1, 33, 1))
sketch11.addConstraint(Sketcher.Constraint("Coincident", 33, 2, 34, 1))
sketch11.addConstraint(Sketcher.Constraint("Coincident", 34, 2, 35, 2))
sketch11.addConstraint(Sketcher.Constraint("Coincident", 35, 1, 36, 1))
sketch11.addConstraint(Sketcher.Constraint("Coincident", 36, 2, 37, 1))
sketch11.addConstraint(Sketcher.Constraint("Coincident", 37, 2, 38, 2))
sketch11.addConstraint(Sketcher.Constraint("Coincident", 38, 1, 39, 1))
sketch11.addConstraint(Sketcher.Constraint("Coincident", 39, 2, 40, 1))
sketch11.addConstraint(Sketcher.Constraint("Coincident", 40, 2, 41, 2))
sketch11.addConstraint(Sketcher.Constraint("Coincident", 41, 1, 42, 1))
sketch11.addConstraint(Sketcher.Constraint("Coincident", 42, 2, 43, 1))
sketch11.addConstraint(Sketcher.Constraint("Coincident", 43, 2, 44, 2))
sketch11.addConstraint(Sketcher.Constraint("Coincident", 44, 1, 45, 1))
sketch11.addConstraint(Sketcher.Constraint("Coincident", 45, 2, 46, 1))
sketch11.addConstraint(Sketcher.Constraint("Coincident", 46, 2, 47, 2))
sketch11.addConstraint(Sketcher.Constraint("Coincident", 47, 1, 48, 1))
sketch11.addConstraint(Sketcher.Constraint("Coincident", 48, 2, 49, 1))
sketch11.addConstraint(Sketcher.Constraint("Coincident", 49, 2, 50, 2))
sketch11.addConstraint(Sketcher.Constraint("Coincident", 50, 1, 51, 1))
sketch11.addConstraint(Sketcher.Constraint("Coincident", 51, 2, 52, 1))
sketch11.addConstraint(Sketcher.Constraint("Coincident", 52, 2, 53, 2))
sketch11.addConstraint(Sketcher.Constraint("Coincident", 53, 1, 54, 1))
sketch11.addConstraint(Sketcher.Constraint("Coincident", 54, 2, 55, 1))
sketch11.addConstraint(Sketcher.Constraint("Coincident", 55, 2, 56, 2))
sketch11.addConstraint(Sketcher.Constraint("Coincident", 56, 1, 57, 1))
sketch11.addConstraint(Sketcher.Constraint("Coincident", 57, 2, 58, 1))
sketch11.addConstraint(Sketcher.Constraint("Coincident", 58, 2, 59, 2))
sketch11.addConstraint(Sketcher.Constraint("Coincident", 59, 1, 60, 1))
sketch11.addConstraint(Sketcher.Constraint("Coincident", 60, 2, 61, 1))
sketch11.addConstraint(Sketcher.Constraint("Coincident", 61, 2, 62, 2))
sketch11.addConstraint(Sketcher.Constraint("Coincident", 62, 1, 63, 1))
sketch11.addConstraint(Sketcher.Constraint("Coincident", 63, 2, 64, 1))
sketch11.addConstraint(Sketcher.Constraint("Coincident", 64, 2, 65, 2))
sketch11.addConstraint(Sketcher.Constraint("Coincident", 65, 1, 66, 1))
sketch11.addConstraint(Sketcher.Constraint("Coincident", 66, 2, 67, 1))
sketch11.addConstraint(Sketcher.Constraint("Coincident", 67, 2, 68, 2))
sketch11.addConstraint(Sketcher.Constraint("Coincident", 68, 1, 69, 1))
sketch11.addConstraint(Sketcher.Constraint("Coincident", 69, 2, 70, 1))
sketch11.addConstraint(Sketcher.Constraint("Coincident", 70, 2, 71, 2))
sketch11.addConstraint(Sketcher.Constraint("Coincident", 71, 1, 0, 1))
sketch11.addConstraint(Sketcher.Constraint("Horizontal", 7))
sketch11.addConstraint(Sketcher.Constraint("Vertical", 12))
sketch11.addConstraint(Sketcher.Constraint("Vertical", 25))
sketch11.addConstraint(Sketcher.Constraint("Horizontal", 30))
sketch11.addConstraint(Sketcher.Constraint("Horizontal", 43))
sketch11.addConstraint(Sketcher.Constraint("Vertical", 48))
sketch11.addConstraint(Sketcher.Constraint("Vertical", 61))
sketch11.addConstraint(Sketcher.Constraint("Horizontal", 66))
sketch11.addConstraint(Sketcher.Constraint("Coincident", 5, 3, 2, 3))
sketch11.addConstraint(Sketcher.Constraint("Coincident", 8, 3, 2, 3))
sketch11.addConstraint(Sketcher.Constraint("Coincident", 11, 3, 2, 3))
sketch11.addConstraint(Sketcher.Constraint("Coincident", 14, 3, 2, 3))
sketch11.addConstraint(Sketcher.Constraint("Coincident", 17, 3, 2, 3))
sketch11.addConstraint(Sketcher.Constraint("Coincident", 20, 3, 2, 3))
sketch11.addConstraint(Sketcher.Constraint("Coincident", 23, 3, 2, 3))
sketch11.addConstraint(Sketcher.Constraint("Coincident", 26, 3, 2, 3))
sketch11.addConstraint(Sketcher.Constraint("Coincident", 29, 3, 2, 3))
sketch11.addConstraint(Sketcher.Constraint("Coincident", 32, 3, 2, 3))
sketch11.addConstraint(Sketcher.Constraint("Coincident", 35, 3, 2, 3))
sketch11.addConstraint(Sketcher.Constraint("Coincident", 38, 3, 2, 3))
sketch11.addConstraint(Sketcher.Constraint("Coincident", 41, 3, 2, 3))
sketch11.addConstraint(Sketcher.Constraint("Coincident", 44, 3, 2, 3))
sketch11.addConstraint(Sketcher.Constraint("Coincident", 47, 3, 2, 3))
sketch11.addConstraint(Sketcher.Constraint("Coincident", 50, 3, 2, 3))
sketch11.addConstraint(Sketcher.Constraint("Coincident", 53, 3, 2, 3))
sketch11.addConstraint(Sketcher.Constraint("Coincident", 56, 3, 2, 3))
sketch11.addConstraint(Sketcher.Constraint("Coincident", 59, 3, 2, 3))
sketch11.addConstraint(Sketcher.Constraint("Coincident", 62, 3, 2, 3))
sketch11.addConstraint(Sketcher.Constraint("Coincident", 65, 3, 2, 3))
sketch11.addConstraint(Sketcher.Constraint("Coincident", 68, 3, 2, 3))
sketch11.addConstraint(Sketcher.Constraint("Coincident", 71, 3, 2, 3))
sketch11.addConstraint(Sketcher.Constraint("Equal", 2, 5))
sketch11.addConstraint(Sketcher.Constraint("Equal", 5, 8))
sketch11.addConstraint(Sketcher.Constraint("Equal", 8, 11))
sketch11.addConstraint(Sketcher.Constraint("Equal", 11, 14))
sketch11.addConstraint(Sketcher.Constraint("Equal", 14, 17))
sketch11.addConstraint(Sketcher.Constraint("Equal", 17, 20))
sketch11.addConstraint(Sketcher.Constraint("Equal", 20, 23))
sketch11.addConstraint(Sketcher.Constraint("Equal", 23, 26))
sketch11.addConstraint(Sketcher.Constraint("Equal", 26, 29))
sketch11.addConstraint(Sketcher.Constraint("Equal", 29, 32))
sketch11.addConstraint(Sketcher.Constraint("Equal", 32, 35))
sketch11.addConstraint(Sketcher.Constraint("Equal", 35, 38))
sketch11.addConstraint(Sketcher.Constraint("Equal", 38, 41))
sketch11.addConstraint(Sketcher.Constraint("Equal", 41, 44))
sketch11.addConstraint(Sketcher.Constraint("Equal", 44, 47))
sketch11.addConstraint(Sketcher.Constraint("Equal", 47, 50))
sketch11.addConstraint(Sketcher.Constraint("Equal", 50, 53))
sketch11.addConstraint(Sketcher.Constraint("Equal", 53, 56))
sketch11.addConstraint(Sketcher.Constraint("Equal", 56, 59))
sketch11.addConstraint(Sketcher.Constraint("Equal", 59, 62))
sketch11.addConstraint(Sketcher.Constraint("Equal", 62, 65))
sketch11.addConstraint(Sketcher.Constraint("Equal", 65, 68))
sketch11.addConstraint(Sketcher.Constraint("Equal", 68, 71))
sketch11.addConstraint(Sketcher.Constraint("Symmetric", 17, 1, 19, 2, -2))
sketch11.addConstraint(Sketcher.Constraint("Symmetric", 15, 2, 21, 2, -2))
sketch11.addConstraint(Sketcher.Constraint("Symmetric", 12, 2, 24, 2, -2))
sketch11.addConstraint(Sketcher.Constraint("Symmetric", 9, 2, 27, 2, -2))
sketch11.addConstraint(Sketcher.Constraint("Symmetric", 6, 2, 30, 2, -2))
sketch11.addConstraint(Sketcher.Constraint("Symmetric", 3, 2, 33, 2, -2))
sketch11.addConstraint(Sketcher.Constraint("Symmetric", 0, 2, 36, 2, -2))
sketch11.addConstraint(Sketcher.Constraint("Symmetric", 51, 2, 57, 2, -2))
sketch11.addConstraint(Sketcher.Constraint("Symmetric", 48, 2, 60, 2, -2))
sketch11.addConstraint(Sketcher.Constraint("Symmetric", 45, 2, 63, 2, -2))
sketch11.addConstraint(Sketcher.Constraint("Symmetric", 42, 2, 66, 2, -2))
sketch11.addConstraint(Sketcher.Constraint("Symmetric", 39, 2, 69, 2, -2))
sketch11.addConstraint(Sketcher.Constraint("PointOnObject", 18, 2, -2))
sketch11.addConstraint(Sketcher.Constraint("PointOnObject", 54, 2, -2))
sketch11.addConstraint(Sketcher.Constraint("Perpendicular", 1, 6))
sketch11.addConstraint(Sketcher.Constraint("Perpendicular", 4, 9))
sketch11.addConstraint(Sketcher.Constraint("Parallel", 0, 13))
sketch11.addConstraint(Sketcher.Constraint("Perpendicular", 10, 15))
sketch11.addConstraint(Sketcher.Constraint("Parallel", 3, 16))
sketch11.addConstraint(Sketcher.Constraint("Perpendicular", 13, 18))
sketch11.addConstraint(Sketcher.Constraint("Parallel", 6, 19))
sketch11.addConstraint(Sketcher.Constraint("Perpendicular", 16, 21))
sketch11.addConstraint(Sketcher.Constraint("Parallel", 9, 22))
sketch11.addConstraint(Sketcher.Constraint("Perpendicular", 19, 24))
sketch11.addConstraint(Sketcher.Constraint("Perpendicular", 22, 27))
sketch11.addConstraint(Sketcher.Constraint("Parallel", 15, 28))
sketch11.addConstraint(Sketcher.Constraint("Parallel", 18, 31))
sketch11.addConstraint(Sketcher.Constraint("Perpendicular", 28, 33))
sketch11.addConstraint(Sketcher.Constraint("Parallel", 21, 34))
sketch11.addConstraint(Sketcher.Constraint("Perpendicular", 31, 36))
sketch11.addConstraint(Sketcher.Constraint("Parallel", 24, 37))
sketch11.addConstraint(Sketcher.Constraint("Perpendicular", 34, 39))
sketch11.addConstraint(Sketcher.Constraint("Parallel", 27, 40))
sketch11.addConstraint(Sketcher.Constraint("Perpendicular", 37, 42))
sketch11.addConstraint(Sketcher.Constraint("Perpendicular", 40, 45))
sketch11.addConstraint(Sketcher.Constraint("Parallel", 33, 46))
sketch11.addConstraint(Sketcher.Constraint("Parallel", 36, 49))
sketch11.addConstraint(Sketcher.Constraint("Perpendicular", 46, 51))
sketch11.addConstraint(Sketcher.Constraint("Parallel", 39, 52))
sketch11.addConstraint(Sketcher.Constraint("Perpendicular", 49, 54))
sketch11.addConstraint(Sketcher.Constraint("Parallel", 42, 55))
sketch11.addConstraint(Sketcher.Constraint("Perpendicular", 52, 57))
sketch11.addConstraint(Sketcher.Constraint("Parallel", 45, 58))
sketch11.addConstraint(Sketcher.Constraint("Perpendicular", 55, 60))
sketch11.addConstraint(Sketcher.Constraint("Perpendicular", 58, 63))
sketch11.addConstraint(Sketcher.Constraint("Parallel", 51, 64))
sketch11.addConstraint(Sketcher.Constraint("Parallel", 54, 67))
sketch11.addConstraint(Sketcher.Constraint("Perpendicular", 64, 69))
sketch11.addConstraint(Sketcher.Constraint("Parallel", 57, 70))
sketch11.addConstraint(Sketcher.Constraint("Horizontal", 71, 3, 0, 2))
sketch11.addConstraint(Sketcher.Constraint("Horizontal", 16, 2, 20, 1))
sketch11.addConstraint(Sketcher.Constraint("Horizontal", 14, 1, 22, 2))
sketch11.addConstraint(Sketcher.Constraint("Vertical", 34, 2, 38, 1))
sketch11.addConstraint(Sketcher.Constraint("Vertical", 33, 2, 39, 2))
sketch11.addConstraint(Sketcher.Constraint("Vertical", 31, 2, 41, 1))
sketch11.addConstraint(Sketcher.Constraint("Vertical", 30, 2, 42, 2))
sketch11.addConstraint(Sketcher.Constraint("Vertical", 28, 2, 44, 1))
sketch11.addConstraint(Sketcher.Constraint("Vertical", 27, 2, 45, 2))
sketch11.addConstraint(Sketcher.Constraint("Vertical", 25, 2, 47, 1))
sketch11.addConstraint(Sketcher.Constraint("Vertical", 23, 1, 49, 2))
sketch11.addConstraint(Sketcher.Constraint("Vertical", 22, 2, 50, 1))
sketch11.addConstraint(Sketcher.Constraint("Vertical", 21, 2, 51, 2))
sketch11.addConstraint(Sketcher.Constraint("Vertical", 19, 2, 53, 1))
sketch11.addConstraint(Sketcher.Constraint("Equal", 66, 12))
sketch11.addConstraint(Sketcher.Constraint("Equal", 1, 3))
sketch11.addConstraint(Sketcher.Constraint("Equal", 3, 4))
sketch11.addConstraint(Sketcher.Constraint("Equal", 4, 6))
sketch11.addConstraint(Sketcher.Constraint("Equal", 6, 9))
sketch11.addConstraint(Sketcher.Constraint("Equal", 9, 10))
sketch11.addConstraint(Sketcher.Constraint("Equal", 10, 13))
sketch11.addConstraint(Sketcher.Constraint("Equal", 13, 15))
sketch11.addConstraint(Sketcher.Constraint("Equal", 15, 16))
sketch11.addConstraint(Sketcher.Constraint("Equal", 16, 18))
sketch11.addConstraint(Sketcher.Constraint("Radius", 2, Q("3 mm")))
sketch11.addConstraint(Sketcher.Constraint("Angle", 0, Q("-29.9993 deg")))
sketch11.addConstraint(Sketcher.Constraint("Angle", 4, Q("-165.001 deg")))
sketch11.addConstraint(Sketcher.Constraint("DistanceY", -1, 1, 2, 3, Q("10.5 mm")))
sketch11.addConstraint(Sketcher.Constraint("DistanceX", -1, 1, 0, 2, Q("3.4 mm")))
sketch11.addConstraint(Sketcher.Constraint("DistanceY", -1, 1, 6, 2, Q("8.8 mm")))
pad10 = body.newObject("PartDesign::Pad", "Pad009")
pad10.Profile = sketch11
pad10.Length = 5

doc.recompute()
